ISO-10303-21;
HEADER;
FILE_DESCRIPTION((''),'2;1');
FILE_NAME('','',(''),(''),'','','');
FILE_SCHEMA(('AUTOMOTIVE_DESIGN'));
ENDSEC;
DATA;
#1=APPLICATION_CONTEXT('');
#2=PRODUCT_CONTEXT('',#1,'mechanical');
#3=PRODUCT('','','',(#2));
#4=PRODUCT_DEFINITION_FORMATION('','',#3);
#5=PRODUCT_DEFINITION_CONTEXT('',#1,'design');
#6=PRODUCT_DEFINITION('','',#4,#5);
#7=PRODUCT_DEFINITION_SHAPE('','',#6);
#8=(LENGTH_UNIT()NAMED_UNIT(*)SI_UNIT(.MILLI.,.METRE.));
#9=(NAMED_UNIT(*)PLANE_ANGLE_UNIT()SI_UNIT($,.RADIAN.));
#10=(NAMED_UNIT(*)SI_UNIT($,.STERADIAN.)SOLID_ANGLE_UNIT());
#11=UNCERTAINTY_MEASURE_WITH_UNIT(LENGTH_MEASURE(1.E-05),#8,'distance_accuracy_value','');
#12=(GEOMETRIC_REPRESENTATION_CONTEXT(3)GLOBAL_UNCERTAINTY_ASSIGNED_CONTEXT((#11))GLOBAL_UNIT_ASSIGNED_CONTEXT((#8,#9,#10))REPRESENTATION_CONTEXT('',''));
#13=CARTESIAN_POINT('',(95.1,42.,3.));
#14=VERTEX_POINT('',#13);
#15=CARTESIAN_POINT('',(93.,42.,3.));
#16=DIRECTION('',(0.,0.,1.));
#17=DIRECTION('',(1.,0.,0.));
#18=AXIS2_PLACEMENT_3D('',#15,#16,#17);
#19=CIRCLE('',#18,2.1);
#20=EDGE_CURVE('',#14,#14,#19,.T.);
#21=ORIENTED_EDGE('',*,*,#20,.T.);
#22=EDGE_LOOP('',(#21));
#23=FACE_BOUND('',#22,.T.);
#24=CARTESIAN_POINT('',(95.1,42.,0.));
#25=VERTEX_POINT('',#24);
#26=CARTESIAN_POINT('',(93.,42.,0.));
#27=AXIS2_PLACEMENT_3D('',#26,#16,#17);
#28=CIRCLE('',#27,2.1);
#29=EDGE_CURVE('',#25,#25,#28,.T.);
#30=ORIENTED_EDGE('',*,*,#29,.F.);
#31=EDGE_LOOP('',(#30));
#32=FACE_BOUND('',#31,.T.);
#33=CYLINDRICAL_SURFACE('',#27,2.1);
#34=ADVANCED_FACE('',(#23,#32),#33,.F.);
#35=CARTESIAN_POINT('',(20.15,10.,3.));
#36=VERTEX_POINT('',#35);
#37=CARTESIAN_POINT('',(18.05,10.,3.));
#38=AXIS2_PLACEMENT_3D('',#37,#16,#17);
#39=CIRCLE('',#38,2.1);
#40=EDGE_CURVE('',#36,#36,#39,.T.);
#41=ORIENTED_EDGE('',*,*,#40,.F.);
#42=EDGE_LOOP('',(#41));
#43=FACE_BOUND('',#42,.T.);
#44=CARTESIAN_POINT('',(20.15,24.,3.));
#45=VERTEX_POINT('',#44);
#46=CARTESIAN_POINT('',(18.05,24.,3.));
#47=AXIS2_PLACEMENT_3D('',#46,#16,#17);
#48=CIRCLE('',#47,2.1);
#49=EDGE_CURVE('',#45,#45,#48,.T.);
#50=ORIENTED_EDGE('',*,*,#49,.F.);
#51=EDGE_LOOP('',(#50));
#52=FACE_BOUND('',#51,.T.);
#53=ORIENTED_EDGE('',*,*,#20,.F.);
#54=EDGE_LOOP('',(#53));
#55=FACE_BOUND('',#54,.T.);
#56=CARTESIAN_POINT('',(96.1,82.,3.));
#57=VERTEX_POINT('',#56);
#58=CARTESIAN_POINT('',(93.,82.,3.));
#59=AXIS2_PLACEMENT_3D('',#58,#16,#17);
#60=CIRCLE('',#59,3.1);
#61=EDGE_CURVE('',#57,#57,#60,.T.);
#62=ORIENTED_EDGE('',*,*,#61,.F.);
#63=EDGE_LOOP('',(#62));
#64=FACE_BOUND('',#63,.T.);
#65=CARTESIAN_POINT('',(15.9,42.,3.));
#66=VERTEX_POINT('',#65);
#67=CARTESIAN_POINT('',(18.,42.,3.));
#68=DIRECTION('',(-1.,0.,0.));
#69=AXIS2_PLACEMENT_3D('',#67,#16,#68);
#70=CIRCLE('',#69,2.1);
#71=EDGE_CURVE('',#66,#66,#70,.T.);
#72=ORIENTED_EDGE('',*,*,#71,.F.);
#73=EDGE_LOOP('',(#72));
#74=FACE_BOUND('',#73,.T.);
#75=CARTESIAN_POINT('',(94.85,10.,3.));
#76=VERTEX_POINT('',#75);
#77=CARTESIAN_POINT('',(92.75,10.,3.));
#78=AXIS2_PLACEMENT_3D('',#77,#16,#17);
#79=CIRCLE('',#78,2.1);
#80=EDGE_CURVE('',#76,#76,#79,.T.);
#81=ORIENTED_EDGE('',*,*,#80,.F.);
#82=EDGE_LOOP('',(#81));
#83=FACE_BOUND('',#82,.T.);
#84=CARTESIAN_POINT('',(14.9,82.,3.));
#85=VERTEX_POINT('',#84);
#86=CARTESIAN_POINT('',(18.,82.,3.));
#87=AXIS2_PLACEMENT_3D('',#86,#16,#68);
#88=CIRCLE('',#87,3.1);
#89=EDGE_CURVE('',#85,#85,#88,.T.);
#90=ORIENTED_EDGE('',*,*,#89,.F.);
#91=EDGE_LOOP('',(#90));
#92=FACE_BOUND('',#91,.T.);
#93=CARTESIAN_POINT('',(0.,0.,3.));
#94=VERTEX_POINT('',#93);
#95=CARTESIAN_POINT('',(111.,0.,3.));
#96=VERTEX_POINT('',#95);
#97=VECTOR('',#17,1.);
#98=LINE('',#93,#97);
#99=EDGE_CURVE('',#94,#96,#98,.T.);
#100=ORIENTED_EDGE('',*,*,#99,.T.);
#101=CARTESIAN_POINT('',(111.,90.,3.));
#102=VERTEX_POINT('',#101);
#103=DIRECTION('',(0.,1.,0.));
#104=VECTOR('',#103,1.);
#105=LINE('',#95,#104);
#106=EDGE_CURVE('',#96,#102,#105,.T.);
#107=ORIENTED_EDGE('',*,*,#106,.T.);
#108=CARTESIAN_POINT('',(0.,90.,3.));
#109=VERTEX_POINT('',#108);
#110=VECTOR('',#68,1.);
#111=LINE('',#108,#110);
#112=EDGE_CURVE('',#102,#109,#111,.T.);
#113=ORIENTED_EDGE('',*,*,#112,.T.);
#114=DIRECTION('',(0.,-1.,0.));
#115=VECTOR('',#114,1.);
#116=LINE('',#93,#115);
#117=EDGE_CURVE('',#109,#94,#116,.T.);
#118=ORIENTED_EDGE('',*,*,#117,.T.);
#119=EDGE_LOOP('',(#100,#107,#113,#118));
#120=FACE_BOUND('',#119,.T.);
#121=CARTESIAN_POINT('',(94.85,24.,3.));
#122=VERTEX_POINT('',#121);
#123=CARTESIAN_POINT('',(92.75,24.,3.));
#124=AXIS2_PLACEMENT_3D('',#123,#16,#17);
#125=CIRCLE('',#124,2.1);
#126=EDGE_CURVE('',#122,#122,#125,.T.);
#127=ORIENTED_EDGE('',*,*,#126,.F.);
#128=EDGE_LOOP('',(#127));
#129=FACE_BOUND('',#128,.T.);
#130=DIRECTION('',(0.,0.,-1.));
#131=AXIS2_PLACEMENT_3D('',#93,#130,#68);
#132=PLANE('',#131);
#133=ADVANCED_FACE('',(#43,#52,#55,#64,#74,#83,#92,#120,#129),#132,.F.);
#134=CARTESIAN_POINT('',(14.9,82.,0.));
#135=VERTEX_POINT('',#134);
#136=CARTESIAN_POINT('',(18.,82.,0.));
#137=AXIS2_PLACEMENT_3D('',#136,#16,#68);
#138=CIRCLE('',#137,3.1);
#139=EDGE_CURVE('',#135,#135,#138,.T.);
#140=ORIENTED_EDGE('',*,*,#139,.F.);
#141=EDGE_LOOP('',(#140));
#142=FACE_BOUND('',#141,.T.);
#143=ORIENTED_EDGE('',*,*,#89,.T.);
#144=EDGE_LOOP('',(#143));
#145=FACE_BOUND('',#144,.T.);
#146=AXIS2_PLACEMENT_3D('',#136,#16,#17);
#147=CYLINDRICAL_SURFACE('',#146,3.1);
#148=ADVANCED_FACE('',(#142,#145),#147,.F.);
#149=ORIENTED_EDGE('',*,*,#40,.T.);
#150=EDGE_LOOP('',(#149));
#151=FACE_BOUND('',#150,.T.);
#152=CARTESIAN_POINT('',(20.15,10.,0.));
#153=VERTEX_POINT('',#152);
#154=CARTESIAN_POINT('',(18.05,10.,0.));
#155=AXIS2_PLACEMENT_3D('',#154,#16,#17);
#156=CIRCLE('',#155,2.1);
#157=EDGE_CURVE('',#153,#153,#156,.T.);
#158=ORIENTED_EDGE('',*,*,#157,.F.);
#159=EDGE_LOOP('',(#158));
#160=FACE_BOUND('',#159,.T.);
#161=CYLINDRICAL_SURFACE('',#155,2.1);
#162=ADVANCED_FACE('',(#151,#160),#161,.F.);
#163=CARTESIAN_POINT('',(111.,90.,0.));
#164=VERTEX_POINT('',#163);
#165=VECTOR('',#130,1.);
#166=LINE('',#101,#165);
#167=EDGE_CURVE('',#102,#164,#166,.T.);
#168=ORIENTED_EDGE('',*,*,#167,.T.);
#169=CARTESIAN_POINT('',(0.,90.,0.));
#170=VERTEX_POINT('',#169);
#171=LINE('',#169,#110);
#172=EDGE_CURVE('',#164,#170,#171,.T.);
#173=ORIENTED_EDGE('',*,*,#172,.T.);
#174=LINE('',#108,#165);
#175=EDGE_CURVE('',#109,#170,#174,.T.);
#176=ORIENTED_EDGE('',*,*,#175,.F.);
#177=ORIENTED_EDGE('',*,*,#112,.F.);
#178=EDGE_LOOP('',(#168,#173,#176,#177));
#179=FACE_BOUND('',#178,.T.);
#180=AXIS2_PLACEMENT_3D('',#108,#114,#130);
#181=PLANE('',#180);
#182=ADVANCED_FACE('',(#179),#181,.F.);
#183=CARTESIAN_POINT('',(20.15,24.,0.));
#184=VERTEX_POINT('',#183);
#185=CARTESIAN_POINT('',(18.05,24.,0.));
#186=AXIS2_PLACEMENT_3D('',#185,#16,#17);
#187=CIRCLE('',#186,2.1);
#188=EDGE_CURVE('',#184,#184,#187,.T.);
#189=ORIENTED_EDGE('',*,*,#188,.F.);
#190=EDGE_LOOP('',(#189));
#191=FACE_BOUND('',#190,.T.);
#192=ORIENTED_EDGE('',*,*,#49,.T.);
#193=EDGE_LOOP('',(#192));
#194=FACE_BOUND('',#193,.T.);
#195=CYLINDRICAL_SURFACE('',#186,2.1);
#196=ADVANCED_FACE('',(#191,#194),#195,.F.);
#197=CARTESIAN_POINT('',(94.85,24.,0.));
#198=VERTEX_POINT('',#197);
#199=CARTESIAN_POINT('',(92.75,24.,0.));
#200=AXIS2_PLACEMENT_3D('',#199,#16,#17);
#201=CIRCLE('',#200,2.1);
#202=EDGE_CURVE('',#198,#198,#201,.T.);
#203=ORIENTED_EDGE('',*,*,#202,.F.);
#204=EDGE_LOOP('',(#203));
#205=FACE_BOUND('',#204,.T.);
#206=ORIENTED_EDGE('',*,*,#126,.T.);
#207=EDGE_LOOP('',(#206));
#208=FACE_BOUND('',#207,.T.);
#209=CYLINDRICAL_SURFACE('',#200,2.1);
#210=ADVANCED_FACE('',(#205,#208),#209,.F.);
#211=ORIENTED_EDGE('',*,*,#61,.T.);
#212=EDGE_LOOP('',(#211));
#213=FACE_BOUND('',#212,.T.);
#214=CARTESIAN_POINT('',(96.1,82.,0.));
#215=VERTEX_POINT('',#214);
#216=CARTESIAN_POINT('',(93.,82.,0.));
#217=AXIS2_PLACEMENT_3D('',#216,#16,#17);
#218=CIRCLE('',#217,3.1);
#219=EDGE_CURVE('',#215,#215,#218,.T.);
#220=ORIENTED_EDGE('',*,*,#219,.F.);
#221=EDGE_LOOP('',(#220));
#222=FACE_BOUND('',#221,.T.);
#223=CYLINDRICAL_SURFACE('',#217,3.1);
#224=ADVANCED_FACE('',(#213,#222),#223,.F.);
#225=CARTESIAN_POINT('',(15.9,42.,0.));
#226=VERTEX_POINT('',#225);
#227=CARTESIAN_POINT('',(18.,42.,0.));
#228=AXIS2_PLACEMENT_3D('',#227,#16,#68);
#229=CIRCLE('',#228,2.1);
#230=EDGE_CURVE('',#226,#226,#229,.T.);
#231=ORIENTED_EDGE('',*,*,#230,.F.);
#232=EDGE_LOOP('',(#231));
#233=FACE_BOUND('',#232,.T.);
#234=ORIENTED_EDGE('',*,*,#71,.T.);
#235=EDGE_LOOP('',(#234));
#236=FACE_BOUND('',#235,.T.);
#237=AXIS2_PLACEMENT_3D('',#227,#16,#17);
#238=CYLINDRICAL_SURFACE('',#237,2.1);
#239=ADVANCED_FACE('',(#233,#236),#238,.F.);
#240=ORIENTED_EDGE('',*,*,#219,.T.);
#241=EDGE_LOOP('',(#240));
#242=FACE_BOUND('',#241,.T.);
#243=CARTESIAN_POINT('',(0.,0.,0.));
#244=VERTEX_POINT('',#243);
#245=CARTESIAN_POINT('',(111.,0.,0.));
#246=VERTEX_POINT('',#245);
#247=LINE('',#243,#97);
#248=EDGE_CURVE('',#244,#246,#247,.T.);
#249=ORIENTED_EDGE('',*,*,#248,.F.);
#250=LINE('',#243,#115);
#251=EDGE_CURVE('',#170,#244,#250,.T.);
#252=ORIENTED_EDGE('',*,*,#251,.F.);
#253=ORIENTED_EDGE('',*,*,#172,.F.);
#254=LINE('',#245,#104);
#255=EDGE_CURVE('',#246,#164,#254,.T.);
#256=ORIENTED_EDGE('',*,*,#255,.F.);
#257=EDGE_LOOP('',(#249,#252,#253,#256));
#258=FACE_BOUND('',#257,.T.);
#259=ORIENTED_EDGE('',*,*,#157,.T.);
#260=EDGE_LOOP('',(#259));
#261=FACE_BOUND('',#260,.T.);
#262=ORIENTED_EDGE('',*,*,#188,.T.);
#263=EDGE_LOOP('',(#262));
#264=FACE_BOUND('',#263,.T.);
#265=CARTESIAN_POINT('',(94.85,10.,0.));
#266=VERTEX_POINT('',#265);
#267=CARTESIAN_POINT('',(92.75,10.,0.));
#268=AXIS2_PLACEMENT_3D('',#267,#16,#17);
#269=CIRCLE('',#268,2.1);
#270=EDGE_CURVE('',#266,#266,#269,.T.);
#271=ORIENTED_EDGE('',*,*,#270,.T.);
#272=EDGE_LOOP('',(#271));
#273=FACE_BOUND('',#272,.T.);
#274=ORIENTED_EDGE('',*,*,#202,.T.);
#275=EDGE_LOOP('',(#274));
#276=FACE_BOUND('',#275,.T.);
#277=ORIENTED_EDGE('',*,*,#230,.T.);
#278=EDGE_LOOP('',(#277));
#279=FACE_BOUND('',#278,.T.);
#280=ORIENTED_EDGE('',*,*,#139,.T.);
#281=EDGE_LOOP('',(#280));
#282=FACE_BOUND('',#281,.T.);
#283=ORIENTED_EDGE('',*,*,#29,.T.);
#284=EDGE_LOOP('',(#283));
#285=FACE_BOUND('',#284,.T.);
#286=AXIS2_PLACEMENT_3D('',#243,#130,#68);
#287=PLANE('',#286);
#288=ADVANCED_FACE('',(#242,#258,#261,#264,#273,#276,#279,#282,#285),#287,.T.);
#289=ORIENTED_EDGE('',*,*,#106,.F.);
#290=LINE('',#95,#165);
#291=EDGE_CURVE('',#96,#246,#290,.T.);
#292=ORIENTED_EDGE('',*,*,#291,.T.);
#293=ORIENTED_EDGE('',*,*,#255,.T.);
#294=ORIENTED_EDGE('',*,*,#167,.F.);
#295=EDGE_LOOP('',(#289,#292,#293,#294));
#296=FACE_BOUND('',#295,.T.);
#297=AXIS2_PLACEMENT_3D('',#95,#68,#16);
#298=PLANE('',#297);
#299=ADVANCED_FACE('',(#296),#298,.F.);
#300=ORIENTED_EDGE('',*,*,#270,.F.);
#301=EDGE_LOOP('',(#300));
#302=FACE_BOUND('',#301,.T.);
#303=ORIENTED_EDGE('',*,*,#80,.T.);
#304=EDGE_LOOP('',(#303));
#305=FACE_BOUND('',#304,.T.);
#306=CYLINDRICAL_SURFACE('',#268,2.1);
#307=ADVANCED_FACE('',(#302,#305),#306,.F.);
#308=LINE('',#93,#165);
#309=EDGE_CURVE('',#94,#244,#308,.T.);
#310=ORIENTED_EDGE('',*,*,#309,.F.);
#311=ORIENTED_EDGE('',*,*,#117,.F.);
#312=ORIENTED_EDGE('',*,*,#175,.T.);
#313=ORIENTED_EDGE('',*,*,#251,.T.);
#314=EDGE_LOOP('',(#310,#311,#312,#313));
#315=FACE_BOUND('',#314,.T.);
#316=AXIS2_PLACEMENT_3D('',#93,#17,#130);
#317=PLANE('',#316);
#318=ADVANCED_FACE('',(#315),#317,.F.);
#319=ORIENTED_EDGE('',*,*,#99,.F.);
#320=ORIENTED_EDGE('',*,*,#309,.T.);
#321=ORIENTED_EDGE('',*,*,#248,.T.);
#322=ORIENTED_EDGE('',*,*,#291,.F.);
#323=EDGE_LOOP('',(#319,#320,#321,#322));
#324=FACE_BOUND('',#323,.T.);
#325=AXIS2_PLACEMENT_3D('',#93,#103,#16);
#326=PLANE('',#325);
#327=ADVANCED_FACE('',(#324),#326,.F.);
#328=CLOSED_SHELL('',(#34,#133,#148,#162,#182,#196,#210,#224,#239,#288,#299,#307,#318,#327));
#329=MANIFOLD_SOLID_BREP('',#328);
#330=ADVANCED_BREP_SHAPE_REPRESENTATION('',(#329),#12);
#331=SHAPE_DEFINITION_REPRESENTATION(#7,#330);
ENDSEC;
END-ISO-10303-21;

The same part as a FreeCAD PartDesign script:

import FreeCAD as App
import Part
import Sketcher


def add_polygon(sketch, points):
    """Adds a closed chain of lines whose ends are joined by coincident constraints."""
    first, n = sketch.GeometryCount, len(points)
    for a, b in zip(points, points[1:] + points[:1]):
        sketch.addGeometry(Part.LineSegment(App.Vector(*a, 0), App.Vector(*b, 0)), False)
    for i in range(n):
        sketch.addConstraint(Sketcher.Constraint("Coincident", first + i, 2, first + (i + 1) % n, 1))

doc = App.newDocument("Part")
params = doc.addObject("Spreadsheet::Sheet", "Params")
for row, (alias, value) in enumerate([
    ("sketch1_width", "111 mm"),
    ("sketch1_height", "90 mm"),
    ("pad1_length", "3 mm"),
    ("sketch2_diameter", "4.2 mm"),
    ("sketch3_diameter", "6.2 mm"),
    ("sketch3_diameter2", "4.2 mm"),
], start=1):
    params.set(f"A{row}", alias)
    params.set(f"B{row}", "=" + value)
    params.setAlias(f"B{row}", alias)

body = doc.addObject("PartDesign::Body", "Body")

sketch1 = body.newObject("Sketcher::SketchObject", "Sketch")
sketch1.AttachmentSupport = (doc.getObject("XY_Plane"), [""])
sketch1.MapMode = "FlatFace"
add_polygon(sketch1, [(0, 90), (0, 0), (111, 0), (111, 90)])
sketch1.addConstraint([
    Sketcher.Constraint("Vertical", 0),
    Sketcher.Constraint("Horizontal", 1),
    Sketcher.Constraint("Vertical", 2),
    Sketcher.Constraint("Horizontal", 3),
    Sketcher.Constraint("Coincident", 0, 2, -1, 1),
    Sketcher.Constraint("DistanceX", 1, 1, 1, 2, 111.0),
    Sketcher.Constraint("DistanceY", 0, 2, 0, 1, 90.0),
])
sketch1.setExpression("Constraints[9]", "Params.sketch1_width")
sketch1.setExpression("Constraints[10]", "Params.sketch1_height")
pad1 = body.newObject("PartDesign::Pad", "Pad")
pad1.Profile = sketch1
pad1.setExpression("Length", "Params.pad1_length")

sketch2 = body.newObject("Sketcher::SketchObject", "Sketch001")
sketch2.AttachmentSupport = (doc.getObject("XY_Plane"), [""])
sketch2.MapMode = "FlatFace"
sketch2.AttachmentOffset = App.Placement(App.Vector(0, 0, 3), App.Rotation())
sketch2.addGeometry([
    Part.Circle(App.Vector(18.1, 24, 0), App.Vector(0, 0, 1), 2.1),
    Part.Circle(App.Vector(18.1, 10, 0), App.Vector(0, 0, 1), 2.1),
    Part.Circle(App.Vector(92.8, 24, 0), App.Vector(0, 0, 1), 2.1),
    Part.Circle(App.Vector(92.8, 10, 0), App.Vector(0, 0, 1), 2.1),
], False)
sketch2.addConstraint([
    Sketcher.Constraint("Equal", 0, 1),
    Sketcher.Constraint("Equal", 1, 2),
    Sketcher.Constraint("Equal", 2, 3),
    Sketcher.Constraint("Horizontal", 0, 3, 2, 3),
    Sketcher.Constraint("Horizontal", 1, 3, 3, 3),
    Sketcher.Constraint("Vertical", 0, 3, 1, 3),
    Sketcher.Constraint("Vertical", 2, 3, 3, 3),
    Sketcher.Constraint("Diameter", 0, 4.2),
    Sketcher.Constraint("DistanceY", -1, 1, 0, 3, 24.0),
    Sketcher.Constraint("DistanceY", -1, 1, 1, 3, 10.0),
    Sketcher.Constraint("DistanceX", 0, 3, 2, 3, 74.7),
    Sketcher.Constraint("DistanceX", -1, 1, 0, 3, 18.05),
])
sketch2.setExpression("Constraints[7]", "Params.sketch2_diameter")
pocket1 = body.newObject("PartDesign::Pocket", "Pocket")
pocket1.Profile = sketch2
pocket1.Type = "ThroughAll"

sketch3 = body.newObject("Sketcher::SketchObject", "Sketch002")
sketch3.AttachmentSupport = (doc.getObject("XY_Plane"), [""])
sketch3.MapMode = "FlatFace"
sketch3.AttachmentOffset = App.Placement(App.Vector(0, 0, 3), App.Rotation())
sketch3.addGeometry([
    Part.Circle(App.Vector(93, 82, 0), App.Vector(0, 0, 1), 3.1),
    Part.Circle(App.Vector(93, 42, 0), App.Vector(0, 0, 1), 2.1),
    Part.Circle(App.Vector(18, 42, 0), App.Vector(0, 0, 1), 2.1),
    Part.Circle(App.Vector(18, 82, 0), App.Vector(0, 0, 1), 3.1),
], False)
sketch3.addConstraint([
    Sketcher.Constraint("Equal", 1, 2),
    Sketcher.Constraint("Equal", 0, 3),
    Sketcher.Constraint("Horizontal", 1, 3, 2, 3),
    Sketcher.Constraint("Horizontal", 0, 3, 3, 3),
    Sketcher.Constraint("Vertical", 0, 3, 1, 3),
    Sketcher.Constraint("Vertical", 2, 3, 3, 3),
    Sketcher.Constraint("Diameter", 0, 6.2),
    Sketcher.Constraint("Diameter", 1, 4.2),
    Sketcher.Constraint("DistanceX", -1, 1, 0, 3, 93.0),
    Sketcher.Constraint("DistanceY", -1, 1, 0, 3, 82.0),
    Sketcher.Constraint("DistanceY", -1, 1, 1, 3, 42.0),
    Sketcher.Constraint("DistanceX", -1, 1, 2, 3, 18.0),
])
sketch3.setExpression("Constraints[6]", "Params.sketch3_diameter")
sketch3.setExpression("Constraints[7]", "Params.sketch3_diameter2")
pocket2 = body.newObject("PartDesign::Pocket", "Pocket001")
pocket2.Profile = sketch3
pocket2.Type = "ThroughAll"

doc.recompute()
